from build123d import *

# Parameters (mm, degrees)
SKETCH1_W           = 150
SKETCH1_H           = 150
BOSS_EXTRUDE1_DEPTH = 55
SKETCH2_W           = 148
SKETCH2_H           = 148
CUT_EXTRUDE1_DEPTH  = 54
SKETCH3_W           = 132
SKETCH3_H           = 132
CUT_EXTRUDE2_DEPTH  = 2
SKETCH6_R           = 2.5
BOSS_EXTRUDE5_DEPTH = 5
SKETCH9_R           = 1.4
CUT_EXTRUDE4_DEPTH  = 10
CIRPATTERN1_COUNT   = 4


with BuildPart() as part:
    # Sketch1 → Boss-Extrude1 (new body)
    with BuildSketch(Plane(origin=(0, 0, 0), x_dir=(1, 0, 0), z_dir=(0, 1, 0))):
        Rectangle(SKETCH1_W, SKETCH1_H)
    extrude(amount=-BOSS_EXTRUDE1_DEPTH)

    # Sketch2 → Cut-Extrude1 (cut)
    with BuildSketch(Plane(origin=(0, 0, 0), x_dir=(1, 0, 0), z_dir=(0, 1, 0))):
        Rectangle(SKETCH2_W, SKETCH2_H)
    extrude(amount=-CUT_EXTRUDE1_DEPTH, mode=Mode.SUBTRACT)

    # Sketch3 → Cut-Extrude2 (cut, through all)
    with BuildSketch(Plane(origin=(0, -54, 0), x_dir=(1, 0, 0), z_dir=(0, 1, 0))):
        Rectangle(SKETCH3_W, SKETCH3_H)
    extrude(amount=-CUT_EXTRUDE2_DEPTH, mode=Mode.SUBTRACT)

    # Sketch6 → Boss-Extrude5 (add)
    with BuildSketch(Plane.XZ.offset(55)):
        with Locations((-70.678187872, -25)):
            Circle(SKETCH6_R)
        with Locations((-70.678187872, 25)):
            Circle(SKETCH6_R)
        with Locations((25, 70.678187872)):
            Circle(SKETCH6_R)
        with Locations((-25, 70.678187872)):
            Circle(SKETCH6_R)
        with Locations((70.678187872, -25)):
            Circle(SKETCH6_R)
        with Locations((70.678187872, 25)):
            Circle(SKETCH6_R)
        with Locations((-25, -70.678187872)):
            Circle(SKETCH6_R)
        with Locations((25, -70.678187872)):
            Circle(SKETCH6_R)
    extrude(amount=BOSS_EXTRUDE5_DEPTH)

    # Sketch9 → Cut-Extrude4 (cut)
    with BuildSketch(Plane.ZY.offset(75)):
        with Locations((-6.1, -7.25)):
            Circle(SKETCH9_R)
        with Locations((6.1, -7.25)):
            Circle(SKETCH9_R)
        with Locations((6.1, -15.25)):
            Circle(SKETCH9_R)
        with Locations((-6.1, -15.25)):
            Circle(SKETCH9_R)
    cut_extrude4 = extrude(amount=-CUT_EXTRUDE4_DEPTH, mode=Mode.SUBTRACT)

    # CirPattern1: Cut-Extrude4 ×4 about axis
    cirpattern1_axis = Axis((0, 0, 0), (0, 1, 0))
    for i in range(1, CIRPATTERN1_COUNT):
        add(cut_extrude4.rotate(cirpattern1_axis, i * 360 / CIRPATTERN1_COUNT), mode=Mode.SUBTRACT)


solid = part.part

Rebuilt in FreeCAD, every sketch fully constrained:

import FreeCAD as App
import Part
import Sketcher

doc = App.newDocument("Part")
body = doc.addObject("PartDesign::Body", "Body")

# Sketch on XZ plane
sketch1 = doc.addObject("Sketcher::SketchObject", "Sketch")
body.addObject(sketch1)
sketch1.AttachmentSupport = (doc.XZ_Plane, [""])
sketch1.MapMode = "FlatFace"
sketch1.addGeometry([
    Part.LineSegment(App.Vector(-75, -75, 0), App.Vector(-75, 75, 0)),
    Part.LineSegment(App.Vector(-75, 75, 0), App.Vector(75, 75, 0)),
    Part.LineSegment(App.Vector(75, 75, 0), App.Vector(75, -75, 0)),
    Part.LineSegment(App.Vector(75, -75, 0), App.Vector(-75, -75, 0)),
], False)
sketch1.addConstraint([
    Sketcher.Constraint("Coincident", 0, 2, 1, 1),
    Sketcher.Constraint("Coincident", 1, 2, 2, 1),
    Sketcher.Constraint("Coincident", 2, 2, 3, 1),
    Sketcher.Constraint("Coincident", 3, 2, 0, 1),
    Sketcher.Constraint("Vertical", 0),
    Sketcher.Constraint("Horizontal", 1),
    Sketcher.Constraint("Vertical", 2),
    Sketcher.Constraint("Horizontal", 3),
    Sketcher.Constraint("Symmetric", 0, 2, 2, 2, -1, 1),
    Sketcher.Constraint("Equal", 3, 0),
    Sketcher.Constraint("DistanceX", 1, 1, 1, 2, 150.0),
])
pad1 = doc.addObject("PartDesign::Pad", "Pad")
body.addObject(pad1)
pad1.Profile = sketch1
pad1.Length = 55

# Sketch on XZ plane
sketch2 = doc.addObject("Sketcher::SketchObject", "Sketch001")
body.addObject(sketch2)
sketch2.AttachmentSupport = (doc.XZ_Plane, [""])
sketch2.MapMode = "FlatFace"
sketch2.addGeometry([
    Part.LineSegment(App.Vector(-74, -74, 0), App.Vector(-74, 74, 0)),
    Part.LineSegment(App.Vector(-74, 74, 0), App.Vector(74, 74, 0)),
    Part.LineSegment(App.Vector(74, 74, 0), App.Vector(74, -74, 0)),
    Part.LineSegment(App.Vector(74, -74, 0), App.Vector(-74, -74, 0)),
], False)
sketch2.addConstraint([
    Sketcher.Constraint("Coincident", 0, 2, 1, 1),
    Sketcher.Constraint("Coincident", 1, 2, 2, 1),
    Sketcher.Constraint("Coincident", 2, 2, 3, 1),
    Sketcher.Constraint("Coincident", 3, 2, 0, 1),
    Sketcher.Constraint("Vertical", 0),
    Sketcher.Constraint("Horizontal", 1),
    Sketcher.Constraint("Vertical", 2),
    Sketcher.Constraint("Horizontal", 3),
    Sketcher.Constraint("Symmetric", 0, 2, 2, 2, -1, 1),
    Sketcher.Constraint("Equal", 3, 0),
    Sketcher.Constraint("DistanceX", 1, 1, 1, 2, 148.0),
])
pocket1 = doc.addObject("PartDesign::Pocket", "Pocket")
body.addObject(pocket1)
pocket1.Profile = sketch2
pocket1.Length = 54
pocket1.Reversed = True

# Sketch on XZ plane
sketch3 = doc.addObject("Sketcher::SketchObject", "Sketch002")
body.addObject(sketch3)
sketch3.AttachmentSupport = (doc.XZ_Plane, [""])
sketch3.MapMode = "FlatFace"
sketch3.AttachmentOffset = App.Placement(App.Vector(0, 0, 54), App.Rotation())
sketch3.addGeometry([
    Part.LineSegment(App.Vector(-66, -66, 0), App.Vector(-66, 66, 0)),
    Part.LineSegment(App.Vector(-66, 66, 0), App.Vector(66, 66, 0)),
    Part.LineSegment(App.Vector(66, 66, 0), App.Vector(66, -66, 0)),
    Part.LineSegment(App.Vector(66, -66, 0), App.Vector(-66, -66, 0)),
], False)
sketch3.addConstraint([
    Sketcher.Constraint("Coincident", 0, 2, 1, 1),
    Sketcher.Constraint("Coincident", 1, 2, 2, 1),
    Sketcher.Constraint("Coincident", 2, 2, 3, 1),
    Sketcher.Constraint("Coincident", 3, 2, 0, 1),
    Sketcher.Constraint("Vertical", 0),
    Sketcher.Constraint("Horizontal", 1),
    Sketcher.Constraint("Vertical", 2),
    Sketcher.Constraint("Horizontal", 3),
    Sketcher.Constraint("Symmetric", 0, 2, 2, 2, -1, 1),
    Sketcher.Constraint("Equal", 3, 0),
    Sketcher.Constraint("DistanceX", 1, 1, 1, 2, 132.0),
])
pocket2 = doc.addObject("PartDesign::Pocket", "Pocket001")
body.addObject(pocket2)
pocket2.Profile = sketch3
pocket2.Type = "ThroughAll"
pocket2.Reversed = True

# Sketch on XZ plane
sketch4 = doc.addObject("Sketcher::SketchObject", "Sketch003")
body.addObject(sketch4)
sketch4.AttachmentSupport = (doc.XZ_Plane, [""])
sketch4.MapMode = "FlatFace"
sketch4.AttachmentOffset = App.Placement(App.Vector(0, 0, 55), App.Rotation())
sketch4.addGeometry([
    Part.Circle(App.Vector(-70.7, -25, 0), App.Vector(0, 0, 1), 2.5),  # 0
    Part.Circle(App.Vector(-70.7, 25, 0), App.Vector(0, 0, 1), 2.5),  # 1
    Part.Circle(App.Vector(25, 70.7, 0), App.Vector(0, 0, 1), 2.5),  # 2
    Part.Circle(App.Vector(-25, 70.7, 0), App.Vector(0, 0, 1), 2.5),  # 3
    Part.Circle(App.Vector(70.7, -25, 0), App.Vector(0, 0, 1), 2.5),  # 4
    Part.Circle(App.Vector(70.7, 25, 0), App.Vector(0, 0, 1), 2.5),  # 5
    Part.Circle(App.Vector(-25, -70.7, 0), App.Vector(0, 0, 1), 2.5),  # 6
    Part.Circle(App.Vector(25, -70.7, 0), App.Vector(0, 0, 1), 2.5),  # 7
], False)
sketch4.addConstraint([
    Sketcher.Constraint("Equal", 0, 1),
    Sketcher.Constraint("Equal", 1, 2),
    Sketcher.Constraint("Equal", 2, 3),
    Sketcher.Constraint("Equal", 3, 4),
    Sketcher.Constraint("Equal", 4, 5),
    Sketcher.Constraint("Equal", 5, 6),
    Sketcher.Constraint("Equal", 6, 7),
    Sketcher.Constraint("Symmetric", 1, 3, 4, 3, -1, 1),
    Sketcher.Constraint("Symmetric", 0, 3, 5, 3, -1, 1),
    Sketcher.Constraint("Symmetric", 2, 3, 6, 3, -1, 1),
    Sketcher.Constraint("Symmetric", 3, 3, 7, 3, -1, 1),
    Sketcher.Constraint("Symmetric", 2, 3, 3, 3, -2),
    Sketcher.Constraint("Symmetric", 0, 3, 4, 3, -2),
    Sketcher.Constraint("Diameter", 0, 5.0),
    Sketcher.Constraint("DistanceY", 0, 3, -1, 1, 25.0),
    Sketcher.Constraint("DistanceX", -1, 1, 2, 3, 25.0),
    Sketcher.Constraint("DistanceX", 0, 3, -1, 1, 70.678188),
    Sketcher.Constraint("DistanceY", -1, 1, 2, 3, 70.678188),
])
pad2 = doc.addObject("PartDesign::Pad", "Pad001")
body.addObject(pad2)
pad2.Profile = sketch4
pad2.Length = 5

# Sketch on YZ plane
sketch5 = doc.addObject("Sketcher::SketchObject", "Sketch004")
body.addObject(sketch5)
sketch5.AttachmentSupport = (doc.YZ_Plane, [""])
sketch5.MapMode = "FlatFace"
sketch5.AttachmentOffset = App.Placement(App.Vector(0, 0, -75), App.Rotation())
sketch5.addGeometry([
    Part.Circle(App.Vector(-7.2, -6.1, 0), App.Vector(0, 0, 1), 1.4),
    Part.Circle(App.Vector(-7.2, 6.1, 0), App.Vector(0, 0, 1), 1.4),
    Part.Circle(App.Vector(-15.2, 6.1, 0), App.Vector(0, 0, 1), 1.4),
    Part.Circle(App.Vector(-15.2, -6.1, 0), App.Vector(0, 0, 1), 1.4),
], False)
sketch5.addConstraint([
    Sketcher.Constraint("Equal", 0, 1),
    Sketcher.Constraint("Equal", 1, 2),
    Sketcher.Constraint("Equal", 2, 3),
    Sketcher.Constraint("Symmetric", 0, 3, 1, 3, -1),
    Sketcher.Constraint("Symmetric", 2, 3, 3, 3, -1),
    Sketcher.Constraint("Horizontal", 1, 3, 2, 3),
    Sketcher.Constraint("Diameter", 0, 2.8),
    Sketcher.Constraint("DistanceX", 2, 3, 1, 3, 8.0),
    Sketcher.Constraint("DistanceY", 0, 3, -1, 1, 6.1),
    Sketcher.Constraint("DistanceX", 0, 3, -1, 1, 7.25),
])
pocket3 = doc.addObject("PartDesign::Pocket", "Pocket002")
body.addObject(pocket3)
pocket3.Profile = sketch5
pocket3.Length = 10
pocket3.Reversed = True
doc.recompute()

polarpattern = doc.addObject("PartDesign::PolarPattern", "PolarPattern")
body.addObject(polarpattern)
polarpattern.Originals = [pocket3]
polarpattern.Axis = (doc.Y_Axis, [""])
polarpattern.Angle = 360
polarpattern.Occurrences = 4
body.Tip = polarpattern

doc.recompute()
